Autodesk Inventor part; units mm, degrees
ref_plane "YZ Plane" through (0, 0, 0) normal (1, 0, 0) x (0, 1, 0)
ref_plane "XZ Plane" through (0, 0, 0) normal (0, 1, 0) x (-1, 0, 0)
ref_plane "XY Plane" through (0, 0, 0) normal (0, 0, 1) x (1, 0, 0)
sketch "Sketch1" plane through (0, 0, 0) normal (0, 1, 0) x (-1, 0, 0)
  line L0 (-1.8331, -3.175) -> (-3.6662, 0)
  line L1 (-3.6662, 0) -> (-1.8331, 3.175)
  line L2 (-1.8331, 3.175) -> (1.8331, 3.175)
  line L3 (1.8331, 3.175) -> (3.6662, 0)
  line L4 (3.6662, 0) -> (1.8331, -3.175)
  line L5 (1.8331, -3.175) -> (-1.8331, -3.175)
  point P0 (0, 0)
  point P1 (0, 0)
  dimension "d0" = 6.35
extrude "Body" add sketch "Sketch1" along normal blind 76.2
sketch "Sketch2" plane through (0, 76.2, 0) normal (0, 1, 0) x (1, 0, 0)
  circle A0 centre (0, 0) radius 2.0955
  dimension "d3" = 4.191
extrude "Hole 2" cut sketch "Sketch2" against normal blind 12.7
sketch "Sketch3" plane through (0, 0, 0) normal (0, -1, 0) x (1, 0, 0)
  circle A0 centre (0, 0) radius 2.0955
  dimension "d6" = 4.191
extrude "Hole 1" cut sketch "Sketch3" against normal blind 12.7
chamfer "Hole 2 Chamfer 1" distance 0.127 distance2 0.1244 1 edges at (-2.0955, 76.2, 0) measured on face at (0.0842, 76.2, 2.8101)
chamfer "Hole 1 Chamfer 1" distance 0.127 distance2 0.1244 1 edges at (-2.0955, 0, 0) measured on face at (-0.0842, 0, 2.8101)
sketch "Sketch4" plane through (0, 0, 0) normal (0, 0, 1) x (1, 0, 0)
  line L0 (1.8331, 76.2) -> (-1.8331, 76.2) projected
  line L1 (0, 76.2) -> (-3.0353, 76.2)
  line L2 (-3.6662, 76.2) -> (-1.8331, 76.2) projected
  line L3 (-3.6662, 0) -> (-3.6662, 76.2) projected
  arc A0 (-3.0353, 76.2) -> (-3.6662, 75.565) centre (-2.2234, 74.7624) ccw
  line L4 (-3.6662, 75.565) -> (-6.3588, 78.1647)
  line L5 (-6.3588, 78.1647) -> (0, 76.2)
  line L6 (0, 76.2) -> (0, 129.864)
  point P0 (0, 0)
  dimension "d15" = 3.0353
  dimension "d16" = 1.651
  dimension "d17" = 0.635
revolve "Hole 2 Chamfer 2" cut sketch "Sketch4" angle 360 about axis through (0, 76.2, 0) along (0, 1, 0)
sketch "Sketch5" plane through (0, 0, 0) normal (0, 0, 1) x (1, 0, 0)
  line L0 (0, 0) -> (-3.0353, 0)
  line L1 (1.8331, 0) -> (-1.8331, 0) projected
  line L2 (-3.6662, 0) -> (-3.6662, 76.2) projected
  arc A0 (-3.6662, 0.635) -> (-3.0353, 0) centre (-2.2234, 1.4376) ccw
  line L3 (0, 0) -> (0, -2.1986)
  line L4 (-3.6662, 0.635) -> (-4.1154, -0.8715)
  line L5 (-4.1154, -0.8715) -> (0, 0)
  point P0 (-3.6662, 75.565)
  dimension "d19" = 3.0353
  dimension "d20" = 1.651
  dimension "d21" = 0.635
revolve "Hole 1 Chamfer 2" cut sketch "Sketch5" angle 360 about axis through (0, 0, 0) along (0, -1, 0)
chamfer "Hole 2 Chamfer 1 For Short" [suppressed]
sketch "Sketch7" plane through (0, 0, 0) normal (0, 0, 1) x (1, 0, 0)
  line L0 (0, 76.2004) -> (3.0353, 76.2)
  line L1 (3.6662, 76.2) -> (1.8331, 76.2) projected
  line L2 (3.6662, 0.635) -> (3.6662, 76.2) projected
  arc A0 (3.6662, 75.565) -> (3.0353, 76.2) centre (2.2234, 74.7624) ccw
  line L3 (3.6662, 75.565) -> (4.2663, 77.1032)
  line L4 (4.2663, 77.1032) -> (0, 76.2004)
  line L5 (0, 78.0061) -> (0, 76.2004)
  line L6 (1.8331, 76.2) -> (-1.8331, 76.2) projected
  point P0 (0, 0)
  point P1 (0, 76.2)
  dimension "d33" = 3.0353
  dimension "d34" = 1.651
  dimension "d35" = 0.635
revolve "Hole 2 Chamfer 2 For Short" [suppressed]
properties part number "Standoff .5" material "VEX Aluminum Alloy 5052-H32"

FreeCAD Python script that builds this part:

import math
import FreeCAD as App
import Part
import Sketcher
from FreeCAD import Vector
Q = App.Units.Quantity


def edges_at(feature, points):
    """Names of the edges that pass closest to the given points."""
    edges = feature.Shape.Edges
    near = lambda p: min(range(len(edges)), key=lambda i: edges[i].distToShape(Part.Vertex(*p))[0])
    return sorted({f"Edge{near(p) + 1}" for p in points})

doc = App.newDocument("Part")
params = doc.addObject("Spreadsheet::Sheet", "Params")
for row, (alias, value) in enumerate([
    ("pad1_length", "3 in"),
    ("sketch2_diameter", "0.165 in"),
    ("pocket1_length", "0.5 in"),
    ("sketch3_diameter", "0.165 in"),
    ("pocket2_length", "0.5 in"),
    ("chamfer_size", "0.005 in"),
    ("chamfer_size2", "0.0048976 in"),
    ("chamfer2_size", "0.005 in"),
    ("chamfer2_size2", "0.0048976 in"),
    ("sketch4_radius", "0.065 in"),
    ("groove_angle", "360 deg"),
    ("sketch5_radius", "0.065 in"),
    ("groove2_angle", "360 deg"),
], start=1):
    params.set(f"A{row}", alias)
    params.set(f"B{row}", "=" + value)
    params.setAlias(f"B{row}", alias)

body = doc.addObject("PartDesign::Body", "Body")

sketch1 = body.newObject("Sketcher::SketchObject", "Sketch")
sketch1.AttachmentSupport = (doc.getObject("XZ_Plane"), [""])
sketch1.MapMode = "FlatFace"
sketch1.addGeometry(Part.LineSegment(Vector(3.7, 0, 0), Vector(1.8, -3.2, 0)), False)
sketch1.addGeometry(Part.LineSegment(Vector(1.8, -3.2, 0), Vector(-1.8, -3.2, 0)), False)
sketch1.addGeometry(Part.LineSegment(Vector(-1.8, -3.2, 0), Vector(-3.7, 0, 0)), False)
sketch1.addGeometry(Part.LineSegment(Vector(-3.7, 0, 0), Vector(-1.8, 3.2, 0)), False)
sketch1.addGeometry(Part.LineSegment(Vector(-1.8, 3.2, 0), Vector(1.8, 3.2, 0)), False)
sketch1.addGeometry(Part.LineSegment(Vector(1.8, 3.2, 0), Vector(3.7, 0, 0)), False)
sketch1.addConstraint(Sketcher.Constraint("Coincident", 0, 2, 1, 1))
sketch1.addConstraint(Sketcher.Constraint("Coincident", 1, 2, 2, 1))
sketch1.addConstraint(Sketcher.Constraint("Coincident", 2, 2, 3, 1))
sketch1.addConstraint(Sketcher.Constraint("Coincident", 3, 2, 4, 1))
sketch1.addConstraint(Sketcher.Constraint("Coincident", 4, 2, 5, 1))
sketch1.addConstraint(Sketcher.Constraint("Coincident", 5, 2, 0, 1))
sketch1.addConstraint(Sketcher.Constraint("Horizontal", 1))
sketch1.addConstraint(Sketcher.Constraint("Horizontal", 4))
sketch1.addConstraint(Sketcher.Constraint("Symmetric", 0, 2, 3, 2, -1, 1))
sketch1.addConstraint(Sketcher.Constraint("Symmetric", 2, 2, 5, 2, -1, 1))
sketch1.addConstraint(Sketcher.Constraint("PointOnObject", 2, 2, -1))
sketch1.addConstraint(Sketcher.Constraint("Parallel", 2, 5))
sketch1.addConstraint(Sketcher.Constraint("Vertical", 1, 2, 3, 2))
sketch1.addConstraint(Sketcher.Constraint("DistanceY", 1, 2, 3, 2, Q("0.25 in")))
sketch1.addConstraint(Sketcher.Constraint("Angle", 0, Q("-120.0002 deg")))
sketch1.addConstraint(Sketcher.Constraint("DistanceX", 1, 2, 1, 1, 3.6662))
pad1 = body.newObject("PartDesign::Pad", "Pad")
pad1.Profile = sketch1
pad1.setExpression("Length", "Params.pad1_length")
pad1.Reversed = True

sketch2 = body.newObject("Sketcher::SketchObject", "Sketch001")
sketch2.AttachmentSupport = (doc.getObject("XZ_Plane"), [""])
sketch2.MapMode = "FlatFace"
sketch2.AttachmentOffset = App.Placement(Vector(0, 0, -3 * 25.4), App.Rotation())
sketch2.addGeometry(Part.Circle(Vector(0, 0, 0), Vector(0, 0, 1), 2.1), False)
sketch2.addConstraint(Sketcher.Constraint("Coincident", 0, 3, -1, 1))
sketch2.addConstraint(Sketcher.Constraint("Diameter", 0, Q("0.165 in")))
sketch2.setExpression("Constraints[1]", "Params.sketch2_diameter")
pocket1 = body.newObject("PartDesign::Pocket", "Pocket")
pocket1.Profile = sketch2
pocket1.setExpression("Length", "Params.pocket1_length")
pocket1.Reversed = True

sketch3 = body.newObject("Sketcher::SketchObject", "Sketch002")
sketch3.AttachmentSupport = (doc.getObject("XZ_Plane"), [""])
sketch3.MapMode = "FlatFace"
sketch3.addGeometry(Part.Circle(Vector(0, 0, 0), Vector(0, 0, 1), 2.1), False)
sketch3.addConstraint(Sketcher.Constraint("Coincident", 0, 3, -1, 1))
sketch3.addConstraint(Sketcher.Constraint("Diameter", 0, Q("0.165 in")))
sketch3.setExpression("Constraints[1]", "Params.sketch3_diameter")
pocket2 = body.newObject("PartDesign::Pocket", "Pocket001")
pocket2.Profile = sketch3
pocket2.setExpression("Length", "Params.pocket2_length")
doc.recompute()

chamfer = body.newObject("PartDesign::Chamfer", "Chamfer")
chamfer.Base = (pocket2, edges_at(pocket2, [(-2.095, 76.2, 0)]))
chamfer.ChamferType = "Two distances"
chamfer.setExpression("Size", "Params.chamfer_size")
chamfer.setExpression("Size2", "Params.chamfer_size2")
doc.recompute()

chamfer2 = body.newObject("PartDesign::Chamfer", "Chamfer001")
chamfer2.Base = (chamfer, edges_at(chamfer, [(-2.095, 0, 0)]))
chamfer2.ChamferType = "Two distances"
chamfer2.setExpression("Size", "Params.chamfer2_size")
chamfer2.setExpression("Size2", "Params.chamfer2_size2")

sketch4 = body.newObject("Sketcher::SketchObject", "Sketch003")
sketch4.AttachmentSupport = (doc.getObject("XY_Plane"), [""])
sketch4.MapMode = "FlatFace"
sketch4.addGeometry(Part.LineSegment(Vector(0, 76.2, 0), Vector(-6.4, 78.2, 0)), False)
sketch4.addGeometry(Part.LineSegment(Vector(-6.4, 78.2, 0), Vector(-3.7, 75.6, 0)), False)
sketch4.addGeometry(Part.ArcOfCircle(Part.Circle(Vector(-2.2, 74.8, 0), Vector(0, 0, 1), 1.7), math.radians(119), math.radians(151)), False)
sketch4.addGeometry(Part.LineSegment(Vector(-3, 76.2, 0), Vector(0, 76.2, 0)), False)
sketch4.addConstraint(Sketcher.Constraint("Coincident", 0, 2, 1, 1))
sketch4.addConstraint(Sketcher.Constraint("Coincident", 1, 2, 2, 2))
sketch4.addConstraint(Sketcher.Constraint("Coincident", 2, 1, 3, 1))
sketch4.addConstraint(Sketcher.Constraint("Coincident", 3, 2, 0, 1))
sketch4.addConstraint(Sketcher.Constraint("Horizontal", 3))
sketch4.addConstraint(Sketcher.Constraint("PointOnObject", 3, 2, -2))
sketch4.addConstraint(Sketcher.Constraint("Radius", 2, Q("0.065 in")))
sketch4.addConstraint(Sketcher.Constraint("DistanceX", 3, 1, 3, 2, Q("0.1195 in")))
sketch4.addConstraint(Sketcher.Constraint("DistanceY", -1, 1, 2, 1, Q("3 in")))
sketch4.addConstraint(Sketcher.Constraint("DistanceY", 1, 2, 2, 1, Q("0.025 in")))
sketch4.addConstraint(Sketcher.Constraint("Angle", 0, Q("162.8302 deg")))
sketch4.addConstraint(Sketcher.Constraint("DistanceX", 0, 2, 1, 2, Q("0.106 in")))
sketch4.addConstraint(Sketcher.Constraint("DistanceY", -1, 1, 2, 3, Q("2.9434 in")))
sketch4.setExpression("Constraints[6]", "Params.sketch4_radius")
groove = body.newObject("PartDesign::Groove", "Groove")
groove.Profile = sketch4
groove.ReferenceAxis = (sketch4, ["V_Axis"])
groove.setExpression("Angle", "Params.groove_angle")

sketch5 = body.newObject("Sketcher::SketchObject", "Sketch004")
sketch5.AttachmentSupport = (doc.getObject("XY_Plane"), [""])
sketch5.MapMode = "FlatFace"
sketch5.addGeometry(Part.LineSegment(Vector(-4.1, -0.9, 0), Vector(0, 0, 0)), False)
sketch5.addGeometry(Part.LineSegment(Vector(0, 0, 0), Vector(-3, 0, 0)), False)
sketch5.addGeometry(Part.ArcOfCircle(Part.Circle(Vector(-2.2, 1.4, 0), Vector(0, 0, 1), 1.7), math.radians(-151), math.radians(-119)), False)
sketch5.addGeometry(Part.LineSegment(Vector(-3.7, 0.6, 0), Vector(-4.1, -0.9, 0)), False)
sketch5.addConstraint(Sketcher.Constraint("Coincident", 0, 2, 1, 1))
sketch5.addConstraint(Sketcher.Constraint("Coincident", 1, 2, 2, 2))
sketch5.addConstraint(Sketcher.Constraint("Coincident", 2, 1, 3, 1))
sketch5.addConstraint(Sketcher.Constraint("Coincident", 3, 2, 0, 1))
sketch5.addConstraint(Sketcher.Constraint("Horizontal", 1))
sketch5.addConstraint(Sketcher.Constraint("Coincident", 0, 2, -1, 1))
sketch5.addConstraint(Sketcher.Constraint("Radius", 2, Q("0.065 in")))
sketch5.addConstraint(Sketcher.Constraint("DistanceX", 1, 2, 1, 1, Q("0.1195 in")))
sketch5.addConstraint(Sketcher.Constraint("DistanceY", -1, 1, 2, 1, Q("0.025 in")))
sketch5.addConstraint(Sketcher.Constraint("Distance", 3, Q("0.0619 in")))
sketch5.addConstraint(Sketcher.Constraint("DistanceY", -1, 1, 2, 3, Q("0.0566 in")))
sketch5.addConstraint(Sketcher.Constraint("DistanceY", 3, 2, -1, 1, Q("0.0343 in")))
sketch5.setExpression("Constraints[6]", "Params.sketch5_radius")
groove2 = body.newObject("PartDesign::Groove", "Groove001")
groove2.Profile = sketch5
groove2.ReferenceAxis = (sketch5, ["V_Axis"])
groove2.setExpression("Angle", "Params.groove2_angle")

doc.recompute()
